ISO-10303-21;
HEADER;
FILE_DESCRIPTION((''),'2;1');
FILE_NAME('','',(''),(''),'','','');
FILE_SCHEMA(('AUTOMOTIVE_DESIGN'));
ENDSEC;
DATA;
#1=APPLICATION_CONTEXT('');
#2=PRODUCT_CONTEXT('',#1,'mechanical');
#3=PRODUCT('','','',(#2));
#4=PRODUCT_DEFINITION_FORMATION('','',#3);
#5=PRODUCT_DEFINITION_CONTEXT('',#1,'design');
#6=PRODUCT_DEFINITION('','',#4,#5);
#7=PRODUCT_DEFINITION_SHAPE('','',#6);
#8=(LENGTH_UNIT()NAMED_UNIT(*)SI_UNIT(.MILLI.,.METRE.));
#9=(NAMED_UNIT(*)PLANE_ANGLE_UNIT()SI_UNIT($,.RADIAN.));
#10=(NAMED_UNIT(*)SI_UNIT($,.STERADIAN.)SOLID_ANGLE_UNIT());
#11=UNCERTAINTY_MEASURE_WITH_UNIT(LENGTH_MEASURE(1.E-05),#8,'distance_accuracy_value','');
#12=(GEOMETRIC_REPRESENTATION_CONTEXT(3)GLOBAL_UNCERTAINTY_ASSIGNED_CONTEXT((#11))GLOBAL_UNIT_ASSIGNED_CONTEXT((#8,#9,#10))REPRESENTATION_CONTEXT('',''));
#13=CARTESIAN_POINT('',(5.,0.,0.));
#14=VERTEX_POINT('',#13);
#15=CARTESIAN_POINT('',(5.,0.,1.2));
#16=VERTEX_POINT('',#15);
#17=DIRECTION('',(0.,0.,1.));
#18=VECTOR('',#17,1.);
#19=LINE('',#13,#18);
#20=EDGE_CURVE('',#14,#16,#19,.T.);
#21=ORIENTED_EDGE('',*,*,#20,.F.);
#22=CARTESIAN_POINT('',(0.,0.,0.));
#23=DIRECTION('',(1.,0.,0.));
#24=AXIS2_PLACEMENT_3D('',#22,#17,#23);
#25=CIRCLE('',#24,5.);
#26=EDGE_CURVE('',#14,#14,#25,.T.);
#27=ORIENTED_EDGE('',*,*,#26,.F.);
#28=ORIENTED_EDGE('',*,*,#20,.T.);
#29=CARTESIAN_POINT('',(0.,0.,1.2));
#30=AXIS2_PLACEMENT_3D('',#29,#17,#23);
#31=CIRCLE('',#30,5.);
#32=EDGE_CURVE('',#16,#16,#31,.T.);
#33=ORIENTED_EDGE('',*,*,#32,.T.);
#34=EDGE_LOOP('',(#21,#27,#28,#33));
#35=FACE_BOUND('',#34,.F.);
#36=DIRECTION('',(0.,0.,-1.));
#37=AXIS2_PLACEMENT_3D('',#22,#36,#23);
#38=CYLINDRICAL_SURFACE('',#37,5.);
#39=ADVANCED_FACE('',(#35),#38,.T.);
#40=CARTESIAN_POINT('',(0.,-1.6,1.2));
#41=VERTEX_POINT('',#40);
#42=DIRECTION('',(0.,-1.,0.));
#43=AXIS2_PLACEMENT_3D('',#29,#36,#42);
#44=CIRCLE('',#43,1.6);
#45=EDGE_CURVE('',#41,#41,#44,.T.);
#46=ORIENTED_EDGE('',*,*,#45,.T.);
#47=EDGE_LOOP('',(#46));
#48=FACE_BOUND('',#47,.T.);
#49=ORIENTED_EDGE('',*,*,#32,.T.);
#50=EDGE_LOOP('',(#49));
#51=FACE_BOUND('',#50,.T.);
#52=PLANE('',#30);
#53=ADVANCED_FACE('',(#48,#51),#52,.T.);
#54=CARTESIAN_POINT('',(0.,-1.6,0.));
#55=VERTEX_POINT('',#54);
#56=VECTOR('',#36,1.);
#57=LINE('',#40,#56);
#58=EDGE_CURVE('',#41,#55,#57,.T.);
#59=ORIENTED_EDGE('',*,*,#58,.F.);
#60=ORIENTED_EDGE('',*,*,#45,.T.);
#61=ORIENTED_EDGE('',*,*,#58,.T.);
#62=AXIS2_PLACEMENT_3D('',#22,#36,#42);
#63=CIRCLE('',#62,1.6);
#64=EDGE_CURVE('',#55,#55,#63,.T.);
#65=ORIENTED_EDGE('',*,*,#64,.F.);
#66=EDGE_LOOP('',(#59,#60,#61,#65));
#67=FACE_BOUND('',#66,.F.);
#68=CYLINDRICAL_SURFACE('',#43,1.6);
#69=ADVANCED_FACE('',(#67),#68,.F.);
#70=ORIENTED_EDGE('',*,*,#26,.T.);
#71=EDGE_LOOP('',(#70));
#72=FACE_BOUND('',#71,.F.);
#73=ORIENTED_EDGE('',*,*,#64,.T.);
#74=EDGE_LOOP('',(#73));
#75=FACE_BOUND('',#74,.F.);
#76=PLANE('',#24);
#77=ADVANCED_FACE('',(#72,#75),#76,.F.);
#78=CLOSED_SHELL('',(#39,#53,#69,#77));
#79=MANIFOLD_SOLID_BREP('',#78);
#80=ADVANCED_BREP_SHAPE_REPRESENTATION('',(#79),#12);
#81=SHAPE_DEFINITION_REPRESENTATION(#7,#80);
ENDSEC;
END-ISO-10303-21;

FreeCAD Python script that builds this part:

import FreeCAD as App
import Part
import Sketcher

doc = App.newDocument("Part")
body = doc.addObject("PartDesign::Body", "Body")

sketch1 = body.newObject("Sketcher::SketchObject", "Sketch")
sketch1.AttachmentSupport = (doc.getObject("XY_Plane"), [""])
sketch1.MapMode = "FlatFace"
sketch1.addGeometry(Part.Circle(App.Vector(0, 0, 0), App.Vector(0, 0, 1), 5), False)
sketch1.addConstraint(Sketcher.Constraint("Coincident", 0, 3, -1, 1))
sketch1.addConstraint(Sketcher.Constraint("Diameter", 0, 10.0))
pad1 = body.newObject("PartDesign::Pad", "Pad")
pad1.Profile = sketch1
pad1.Length = 1.2

sketch2 = body.newObject("Sketcher::SketchObject", "Sketch001")
sketch2.AttachmentSupport = (doc.getObject("XY_Plane"), [""])
sketch2.MapMode = "FlatFace"
sketch2.AttachmentOffset = App.Placement(App.Vector(0, 0, 1.2), App.Rotation())
sketch2.addGeometry(Part.Circle(App.Vector(0, 0, 0), App.Vector(0, 0, 1), 1.6), False)
sketch2.addConstraint(Sketcher.Constraint("Coincident", 0, 3, -1, 1))
sketch2.addConstraint(Sketcher.Constraint("Diameter", 0, 3.2))
doc.recompute()
hole = body.newObject("PartDesign::Hole", "Hole")
hole.Profile = sketch2
hole.ThreadType = "None"
hole.Diameter = 3.2
hole.DepthType = "ThroughAll"

doc.recompute()
